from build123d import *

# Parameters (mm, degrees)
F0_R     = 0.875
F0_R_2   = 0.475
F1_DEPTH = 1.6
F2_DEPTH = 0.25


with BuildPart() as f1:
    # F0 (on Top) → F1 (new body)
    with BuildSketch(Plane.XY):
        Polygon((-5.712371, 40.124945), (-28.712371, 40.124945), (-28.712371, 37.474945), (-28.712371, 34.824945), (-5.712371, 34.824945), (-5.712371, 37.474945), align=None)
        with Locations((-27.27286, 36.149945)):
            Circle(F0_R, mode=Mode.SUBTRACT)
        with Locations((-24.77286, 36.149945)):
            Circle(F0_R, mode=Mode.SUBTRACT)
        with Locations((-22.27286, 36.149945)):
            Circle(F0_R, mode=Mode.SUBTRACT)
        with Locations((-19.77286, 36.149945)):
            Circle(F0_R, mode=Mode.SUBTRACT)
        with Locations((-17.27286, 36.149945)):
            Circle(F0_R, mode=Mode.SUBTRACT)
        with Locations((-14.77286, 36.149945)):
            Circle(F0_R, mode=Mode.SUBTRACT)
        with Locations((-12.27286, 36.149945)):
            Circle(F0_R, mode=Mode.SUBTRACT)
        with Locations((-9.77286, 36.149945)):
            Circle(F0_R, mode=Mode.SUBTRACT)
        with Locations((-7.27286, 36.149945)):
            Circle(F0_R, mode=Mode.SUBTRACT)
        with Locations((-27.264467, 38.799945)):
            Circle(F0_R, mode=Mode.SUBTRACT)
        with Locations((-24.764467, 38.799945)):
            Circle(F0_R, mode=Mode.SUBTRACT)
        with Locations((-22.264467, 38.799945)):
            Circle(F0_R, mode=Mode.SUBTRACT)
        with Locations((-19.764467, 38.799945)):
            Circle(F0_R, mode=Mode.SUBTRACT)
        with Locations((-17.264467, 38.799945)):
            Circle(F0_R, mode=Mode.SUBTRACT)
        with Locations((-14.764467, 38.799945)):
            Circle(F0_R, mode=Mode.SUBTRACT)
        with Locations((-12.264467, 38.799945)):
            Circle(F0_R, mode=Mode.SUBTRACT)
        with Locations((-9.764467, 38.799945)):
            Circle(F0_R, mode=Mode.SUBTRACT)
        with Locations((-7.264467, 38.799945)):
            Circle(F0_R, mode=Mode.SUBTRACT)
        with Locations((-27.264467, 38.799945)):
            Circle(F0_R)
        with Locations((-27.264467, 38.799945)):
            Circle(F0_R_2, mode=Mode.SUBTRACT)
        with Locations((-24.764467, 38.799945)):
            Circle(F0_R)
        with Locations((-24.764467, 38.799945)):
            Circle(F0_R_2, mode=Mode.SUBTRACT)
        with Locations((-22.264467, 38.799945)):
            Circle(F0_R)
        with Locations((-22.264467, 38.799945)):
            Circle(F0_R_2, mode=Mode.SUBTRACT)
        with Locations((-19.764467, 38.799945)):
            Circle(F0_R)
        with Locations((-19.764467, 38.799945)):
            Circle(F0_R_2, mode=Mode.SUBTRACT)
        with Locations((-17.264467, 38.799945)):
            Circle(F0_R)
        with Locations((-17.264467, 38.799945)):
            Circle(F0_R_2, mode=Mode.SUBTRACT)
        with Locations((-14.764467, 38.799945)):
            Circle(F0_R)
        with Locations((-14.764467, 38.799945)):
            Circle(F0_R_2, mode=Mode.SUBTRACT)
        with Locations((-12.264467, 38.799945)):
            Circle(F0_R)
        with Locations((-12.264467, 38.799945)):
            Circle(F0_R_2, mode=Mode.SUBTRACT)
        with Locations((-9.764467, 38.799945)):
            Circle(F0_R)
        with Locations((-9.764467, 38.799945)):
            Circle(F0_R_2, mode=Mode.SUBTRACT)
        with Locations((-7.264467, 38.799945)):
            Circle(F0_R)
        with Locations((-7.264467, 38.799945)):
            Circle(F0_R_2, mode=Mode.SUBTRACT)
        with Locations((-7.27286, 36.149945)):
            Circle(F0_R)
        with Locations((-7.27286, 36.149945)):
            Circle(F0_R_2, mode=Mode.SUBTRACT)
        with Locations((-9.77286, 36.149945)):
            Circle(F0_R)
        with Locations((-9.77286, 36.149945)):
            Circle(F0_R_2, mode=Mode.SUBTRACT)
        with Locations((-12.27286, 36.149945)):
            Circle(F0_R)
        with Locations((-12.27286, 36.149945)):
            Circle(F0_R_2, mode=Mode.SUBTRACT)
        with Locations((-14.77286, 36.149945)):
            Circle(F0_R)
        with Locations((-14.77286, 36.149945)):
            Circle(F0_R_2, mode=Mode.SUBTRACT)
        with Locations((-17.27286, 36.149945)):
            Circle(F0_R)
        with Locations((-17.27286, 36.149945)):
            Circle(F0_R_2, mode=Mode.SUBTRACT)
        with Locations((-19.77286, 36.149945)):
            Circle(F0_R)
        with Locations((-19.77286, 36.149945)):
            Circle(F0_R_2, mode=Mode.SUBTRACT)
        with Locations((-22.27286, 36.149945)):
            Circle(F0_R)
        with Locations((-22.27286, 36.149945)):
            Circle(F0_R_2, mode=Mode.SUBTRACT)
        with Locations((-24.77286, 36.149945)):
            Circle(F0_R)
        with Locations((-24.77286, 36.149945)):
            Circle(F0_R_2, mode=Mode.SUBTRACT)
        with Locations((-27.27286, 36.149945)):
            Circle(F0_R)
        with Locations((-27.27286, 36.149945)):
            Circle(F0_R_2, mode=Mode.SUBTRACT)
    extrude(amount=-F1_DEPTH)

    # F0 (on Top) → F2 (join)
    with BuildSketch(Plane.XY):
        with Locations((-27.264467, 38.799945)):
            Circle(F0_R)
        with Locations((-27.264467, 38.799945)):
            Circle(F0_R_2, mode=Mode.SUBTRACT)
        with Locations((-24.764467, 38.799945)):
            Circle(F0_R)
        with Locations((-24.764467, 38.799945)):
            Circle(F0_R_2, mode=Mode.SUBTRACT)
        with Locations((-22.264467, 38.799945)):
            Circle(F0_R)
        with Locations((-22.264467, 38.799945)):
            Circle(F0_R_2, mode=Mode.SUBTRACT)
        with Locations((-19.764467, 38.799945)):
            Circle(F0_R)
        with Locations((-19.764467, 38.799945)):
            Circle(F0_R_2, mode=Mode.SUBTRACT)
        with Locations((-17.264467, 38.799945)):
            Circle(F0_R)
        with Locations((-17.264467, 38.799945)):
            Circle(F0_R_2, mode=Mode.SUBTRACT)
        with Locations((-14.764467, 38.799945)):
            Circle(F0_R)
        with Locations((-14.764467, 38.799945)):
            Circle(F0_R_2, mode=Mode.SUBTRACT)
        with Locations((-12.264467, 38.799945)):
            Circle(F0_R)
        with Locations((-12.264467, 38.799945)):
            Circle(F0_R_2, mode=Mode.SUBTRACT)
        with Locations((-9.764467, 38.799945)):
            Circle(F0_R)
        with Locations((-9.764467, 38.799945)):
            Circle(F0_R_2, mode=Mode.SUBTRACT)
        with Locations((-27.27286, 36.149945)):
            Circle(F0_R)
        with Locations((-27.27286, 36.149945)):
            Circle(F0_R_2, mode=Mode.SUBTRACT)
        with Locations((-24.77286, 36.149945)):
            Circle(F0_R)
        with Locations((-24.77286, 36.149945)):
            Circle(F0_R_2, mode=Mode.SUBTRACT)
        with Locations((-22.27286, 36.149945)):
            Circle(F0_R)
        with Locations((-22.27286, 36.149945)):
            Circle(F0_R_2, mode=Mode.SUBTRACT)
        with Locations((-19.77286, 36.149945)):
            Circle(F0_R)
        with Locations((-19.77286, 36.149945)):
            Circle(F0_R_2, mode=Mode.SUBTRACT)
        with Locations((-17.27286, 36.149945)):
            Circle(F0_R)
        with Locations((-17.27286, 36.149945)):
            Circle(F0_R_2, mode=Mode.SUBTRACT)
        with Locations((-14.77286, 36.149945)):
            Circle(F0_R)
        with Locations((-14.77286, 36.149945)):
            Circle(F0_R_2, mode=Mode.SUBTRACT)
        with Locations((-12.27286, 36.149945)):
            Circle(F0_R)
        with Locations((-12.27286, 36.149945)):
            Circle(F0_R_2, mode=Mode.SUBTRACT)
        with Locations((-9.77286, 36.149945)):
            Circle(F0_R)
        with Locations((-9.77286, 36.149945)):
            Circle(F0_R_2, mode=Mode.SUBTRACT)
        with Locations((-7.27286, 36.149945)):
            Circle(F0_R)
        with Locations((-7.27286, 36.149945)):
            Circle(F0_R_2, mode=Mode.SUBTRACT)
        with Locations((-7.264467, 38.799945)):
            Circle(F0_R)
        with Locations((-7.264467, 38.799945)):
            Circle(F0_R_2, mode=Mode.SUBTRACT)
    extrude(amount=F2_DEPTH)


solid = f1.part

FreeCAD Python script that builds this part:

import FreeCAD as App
import Part
import Sketcher
Q = App.Units.Quantity


def add_polygon(sketch, points):
    """Adds a closed chain of lines whose ends are joined by coincident constraints."""
    first, n = sketch.GeometryCount, len(points)
    for a, b in zip(points, points[1:] + points[:1]):
        sketch.addGeometry(Part.LineSegment(App.Vector(*a, 0), App.Vector(*b, 0)), False)
    for i in range(n):
        sketch.addConstraint(Sketcher.Constraint("Coincident", first + i, 2, first + (i + 1) % n, 1))

doc = App.newDocument("Part")
params = doc.addObject("Spreadsheet::Sheet", "Params")
for row, (alias, value) in enumerate([
    ("sketch1_diameter", "0.95 mm"),
    ("sketch1_width", "23 mm"),
    ("sketch1_height", "5.3 mm"),
    ("pad1_length", "1.6 mm"),
    ("sketch2_diameter", "1.75 mm"),
    ("sketch2_diameter2", "0.95 mm"),
    ("pad2_length", "0.25 mm"),
], start=1):
    params.set(f"A{row}", alias)
    params.set(f"B{row}", "=" + value)
    params.setAlias(f"B{row}", alias)

body = doc.addObject("PartDesign::Body", "Body")

# Sketch on XY plane
sketch1 = doc.addObject("Sketcher::SketchObject", "Sketch")
body.addObject(sketch1)
sketch1.AttachmentSupport = (doc.XY_Plane, [""])
sketch1.MapMode = "FlatFace"
add_polygon(sketch1, [(-5.71, 40.12), (-28.71, 40.12), (-28.71, 34.82), (-5.71, 34.82)])  # lines 0-3
sketch1.addGeometry(Part.Circle(App.Vector(-27.27, 36.15, 0), App.Vector(0, 0, 1), 0.47), False)  # 4
sketch1.addGeometry(Part.Circle(App.Vector(-24.77, 36.15, 0), App.Vector(0, 0, 1), 0.47), False)  # 5
sketch1.addGeometry(Part.Circle(App.Vector(-22.27, 36.15, 0), App.Vector(0, 0, 1), 0.47), False)  # 6
sketch1.addGeometry(Part.Circle(App.Vector(-19.77, 36.15, 0), App.Vector(0, 0, 1), 0.47), False)  # 7
sketch1.addGeometry(Part.Circle(App.Vector(-17.27, 36.15, 0), App.Vector(0, 0, 1), 0.47), False)  # 8
sketch1.addGeometry(Part.Circle(App.Vector(-14.77, 36.15, 0), App.Vector(0, 0, 1), 0.47), False)  # 9
sketch1.addGeometry(Part.Circle(App.Vector(-12.27, 36.15, 0), App.Vector(0, 0, 1), 0.47), False)  # 10
sketch1.addGeometry(Part.Circle(App.Vector(-9.77, 36.15, 0), App.Vector(0, 0, 1), 0.47), False)  # 11
sketch1.addGeometry(Part.Circle(App.Vector(-7.27, 36.15, 0), App.Vector(0, 0, 1), 0.47), False)  # 12
sketch1.addGeometry(Part.Circle(App.Vector(-27.26, 38.8, 0), App.Vector(0, 0, 1), 0.47), False)  # 13
sketch1.addGeometry(Part.Circle(App.Vector(-24.76, 38.8, 0), App.Vector(0, 0, 1), 0.47), False)  # 14
sketch1.addGeometry(Part.Circle(App.Vector(-22.26, 38.8, 0), App.Vector(0, 0, 1), 0.47), False)  # 15
sketch1.addGeometry(Part.Circle(App.Vector(-19.76, 38.8, 0), App.Vector(0, 0, 1), 0.47), False)  # 16
sketch1.addGeometry(Part.Circle(App.Vector(-17.26, 38.8, 0), App.Vector(0, 0, 1), 0.47), False)  # 17
sketch1.addGeometry(Part.Circle(App.Vector(-14.76, 38.8, 0), App.Vector(0, 0, 1), 0.47), False)  # 18
sketch1.addGeometry(Part.Circle(App.Vector(-12.26, 38.8, 0), App.Vector(0, 0, 1), 0.47), False)  # 19
sketch1.addGeometry(Part.Circle(App.Vector(-9.76, 38.8, 0), App.Vector(0, 0, 1), 0.47), False)  # 20
sketch1.addGeometry(Part.Circle(App.Vector(-7.26, 38.8, 0), App.Vector(0, 0, 1), 0.47), False)  # 21
sketch1.addConstraint([
    Sketcher.Constraint("Horizontal", 0),
    Sketcher.Constraint("Vertical", 1),
    Sketcher.Constraint("Horizontal", 2),
    Sketcher.Constraint("Vertical", 3),
    Sketcher.Constraint("Equal", 4, 5),
    Sketcher.Constraint("Equal", 5, 6),
    Sketcher.Constraint("Equal", 6, 7),
    Sketcher.Constraint("Equal", 7, 8),
    Sketcher.Constraint("Equal", 8, 9),
    Sketcher.Constraint("Equal", 9, 10),
    Sketcher.Constraint("Equal", 10, 11),
    Sketcher.Constraint("Equal", 11, 12),
    Sketcher.Constraint("Equal", 12, 13),
    Sketcher.Constraint("Equal", 13, 14),
    Sketcher.Constraint("Equal", 14, 15),
    Sketcher.Constraint("Equal", 15, 16),
    Sketcher.Constraint("Equal", 16, 17),
    Sketcher.Constraint("Equal", 17, 18),
    Sketcher.Constraint("Equal", 18, 19),
    Sketcher.Constraint("Equal", 19, 20),
    Sketcher.Constraint("Equal", 20, 21),
    Sketcher.Constraint("Horizontal", 4, 3, 5, 3),
    Sketcher.Constraint("Horizontal", 5, 3, 6, 3),
    Sketcher.Constraint("Horizontal", 6, 3, 7, 3),
    Sketcher.Constraint("Horizontal", 7, 3, 8, 3),
    Sketcher.Constraint("Horizontal", 8, 3, 9, 3),
    Sketcher.Constraint("Horizontal", 9, 3, 10, 3),
    Sketcher.Constraint("Horizontal", 10, 3, 11, 3),
    Sketcher.Constraint("Horizontal", 11, 3, 12, 3),
    Sketcher.Constraint("Horizontal", 13, 3, 14, 3),
    Sketcher.Constraint("Horizontal", 14, 3, 15, 3),
    Sketcher.Constraint("Horizontal", 15, 3, 16, 3),
    Sketcher.Constraint("Horizontal", 16, 3, 17, 3),
    Sketcher.Constraint("Horizontal", 17, 3, 18, 3),
    Sketcher.Constraint("Horizontal", 18, 3, 19, 3),
    Sketcher.Constraint("Horizontal", 19, 3, 20, 3),
    Sketcher.Constraint("Horizontal", 20, 3, 21, 3),
    Sketcher.Constraint("Diameter", 4, Q("0.95 mm")),
    Sketcher.Constraint("DistanceX", 0, 2, 0, 1, Q("23 mm")),
    Sketcher.Constraint("DistanceY", 1, 2, 1, 1, Q("5.3 mm")),
    Sketcher.Constraint("DistanceX", 4, 3, 6, 3, Q("5 mm")),
    Sketcher.Constraint("DistanceX", 5, 3, 7, 3, Q("5 mm")),
    Sketcher.Constraint("DistanceX", 6, 3, 8, 3, Q("5 mm")),
    Sketcher.Constraint("DistanceX", 7, 3, 9, 3, Q("5 mm")),
    Sketcher.Constraint("DistanceX", 8, 3, 10, 3, Q("5 mm")),
    Sketcher.Constraint("DistanceX", 9, 3, 11, 3, Q("5 mm")),
    Sketcher.Constraint("DistanceX", 10, 3, 12, 3, Q("5 mm")),
    Sketcher.Constraint("DistanceX", 13, 3, 15, 3, Q("5 mm")),
    Sketcher.Constraint("DistanceX", 14, 3, 16, 3, Q("5 mm")),
    Sketcher.Constraint("DistanceX", 15, 3, 17, 3, Q("5 mm")),
    Sketcher.Constraint("DistanceX", 16, 3, 18, 3, Q("5 mm")),
    Sketcher.Constraint("DistanceX", 17, 3, 19, 3, Q("5 mm")),
    Sketcher.Constraint("DistanceX", 18, 3, 20, 3, Q("5 mm")),
    Sketcher.Constraint("DistanceX", 19, 3, 21, 3, Q("5 mm")),
    Sketcher.Constraint("DistanceX", 4, 3, 5, 3, Q("2.5 mm")),
    Sketcher.Constraint("DistanceX", 13, 3, 14, 3, Q("2.5 mm")),
    Sketcher.Constraint("DistanceY", 4, 3, 13, 3, Q("2.65 mm")),
    Sketcher.Constraint("DistanceY", 13, 3, 0, 2, Q("1.325 mm")),
    Sketcher.Constraint("DistanceX", 4, 3, -1, 1, Q("27.27286 mm")),
    Sketcher.Constraint("DistanceX", 0, 2, -1, 1, Q("28.712371 mm")),
    Sketcher.Constraint("DistanceY", -1, 1, 4, 3, Q("36.149945 mm")),
    Sketcher.Constraint("DistanceX", 13, 3, -1, 1, Q("27.264467 mm")),
])
sketch1.setExpression("Constraints[41]", "Params.sketch1_diameter")
sketch1.setExpression("Constraints[42]", "Params.sketch1_width")
sketch1.setExpression("Constraints[43]", "Params.sketch1_height")
pad1 = doc.addObject("PartDesign::Pad", "Pad")
body.addObject(pad1)
pad1.Profile = sketch1
pad1.setExpression("Length", "Params.pad1_length")
pad1.Reversed = True

# Sketch on XY plane
sketch2 = doc.addObject("Sketcher::SketchObject", "Sketch001")
body.addObject(sketch2)
sketch2.AttachmentSupport = (doc.XY_Plane, [""])
sketch2.MapMode = "FlatFace"
sketch2.addGeometry([
    Part.Circle(App.Vector(-27.26, 38.8, 0), App.Vector(0, 0, 1), 0.88),  # 0
    Part.Circle(App.Vector(-27.26, 38.8, 0), App.Vector(0, 0, 1), 0.47),  # 1
    Part.Circle(App.Vector(-24.76, 38.8, 0), App.Vector(0, 0, 1), 0.88),  # 2
    Part.Circle(App.Vector(-24.76, 38.8, 0), App.Vector(0, 0, 1), 0.47),  # 3
    Part.Circle(App.Vector(-22.26, 38.8, 0), App.Vector(0, 0, 1), 0.88),  # 4
    Part.Circle(App.Vector(-22.26, 38.8, 0), App.Vector(0, 0, 1), 0.47),  # 5
    Part.Circle(App.Vector(-19.76, 38.8, 0), App.Vector(0, 0, 1), 0.88),  # 6
    Part.Circle(App.Vector(-19.76, 38.8, 0), App.Vector(0, 0, 1), 0.47),  # 7
    Part.Circle(App.Vector(-17.26, 38.8, 0), App.Vector(0, 0, 1), 0.88),  # 8
    Part.Circle(App.Vector(-17.26, 38.8, 0), App.Vector(0, 0, 1), 0.47),  # 9
    Part.Circle(App.Vector(-14.76, 38.8, 0), App.Vector(0, 0, 1), 0.88),  # 10
    Part.Circle(App.Vector(-14.76, 38.8, 0), App.Vector(0, 0, 1), 0.47),  # 11
    Part.Circle(App.Vector(-12.26, 38.8, 0), App.Vector(0, 0, 1), 0.88),  # 12
    Part.Circle(App.Vector(-12.26, 38.8, 0), App.Vector(0, 0, 1), 0.47),  # 13
    Part.Circle(App.Vector(-9.76, 38.8, 0), App.Vector(0, 0, 1), 0.88),  # 14
    Part.Circle(App.Vector(-9.76, 38.8, 0), App.Vector(0, 0, 1), 0.47),  # 15
    Part.Circle(App.Vector(-27.27, 36.15, 0), App.Vector(0, 0, 1), 0.88),  # 16
    Part.Circle(App.Vector(-27.27, 36.15, 0), App.Vector(0, 0, 1), 0.47),  # 17
    Part.Circle(App.Vector(-24.77, 36.15, 0), App.Vector(0, 0, 1), 0.88),  # 18
    Part.Circle(App.Vector(-24.77, 36.15, 0), App.Vector(0, 0, 1), 0.47),  # 19
    Part.Circle(App.Vector(-22.27, 36.15, 0), App.Vector(0, 0, 1), 0.88),  # 20
    Part.Circle(App.Vector(-22.27, 36.15, 0), App.Vector(0, 0, 1), 0.47),  # 21
    Part.Circle(App.Vector(-19.77, 36.15, 0), App.Vector(0, 0, 1), 0.88),  # 22
    Part.Circle(App.Vector(-19.77, 36.15, 0), App.Vector(0, 0, 1), 0.47),  # 23
    Part.Circle(App.Vector(-17.27, 36.15, 0), App.Vector(0, 0, 1), 0.88),  # 24
    Part.Circle(App.Vector(-17.27, 36.15, 0), App.Vector(0, 0, 1), 0.47),  # 25
    Part.Circle(App.Vector(-14.77, 36.15, 0), App.Vector(0, 0, 1), 0.88),  # 26
    Part.Circle(App.Vector(-14.77, 36.15, 0), App.Vector(0, 0, 1), 0.47),  # 27
    Part.Circle(App.Vector(-12.27, 36.15, 0), App.Vector(0, 0, 1), 0.88),  # 28
    Part.Circle(App.Vector(-12.27, 36.15, 0), App.Vector(0, 0, 1), 0.47),  # 29
    Part.Circle(App.Vector(-9.77, 36.15, 0), App.Vector(0, 0, 1), 0.88),  # 30
    Part.Circle(App.Vector(-9.77, 36.15, 0), App.Vector(0, 0, 1), 0.47),  # 31
    Part.Circle(App.Vector(-7.27, 36.15, 0), App.Vector(0, 0, 1), 0.88),  # 32
    Part.Circle(App.Vector(-7.27, 36.15, 0), App.Vector(0, 0, 1), 0.47),  # 33
    Part.Circle(App.Vector(-7.26, 38.8, 0), App.Vector(0, 0, 1), 0.88),  # 34
    Part.Circle(App.Vector(-7.26, 38.8, 0), App.Vector(0, 0, 1), 0.47),  # 35
], False)
sketch2.addConstraint([
    Sketcher.Constraint("Coincident", 1, 3, 0, 3),
    Sketcher.Constraint("Coincident", 3, 3, 2, 3),
    Sketcher.Constraint("Coincident", 5, 3, 4, 3),
    Sketcher.Constraint("Coincident", 7, 3, 6, 3),
    Sketcher.Constraint("Coincident", 9, 3, 8, 3),
    Sketcher.Constraint("Coincident", 11, 3, 10, 3),
    Sketcher.Constraint("Coincident", 13, 3, 12, 3),
    Sketcher.Constraint("Coincident", 15, 3, 14, 3),
    Sketcher.Constraint("Coincident", 17, 3, 16, 3),
    Sketcher.Constraint("Coincident", 19, 3, 18, 3),
    Sketcher.Constraint("Coincident", 21, 3, 20, 3),
    Sketcher.Constraint("Coincident", 23, 3, 22, 3),
    Sketcher.Constraint("Coincident", 25, 3, 24, 3),
    Sketcher.Constraint("Coincident", 27, 3, 26, 3),
    Sketcher.Constraint("Coincident", 29, 3, 28, 3),
    Sketcher.Constraint("Coincident", 31, 3, 30, 3),
    Sketcher.Constraint("Coincident", 33, 3, 32, 3),
    Sketcher.Constraint("Coincident", 35, 3, 34, 3),
    Sketcher.Constraint("Equal", 0, 2),
    Sketcher.Constraint("Equal", 1, 3),
    Sketcher.Constraint("Equal", 2, 4),
    Sketcher.Constraint("Equal", 3, 5),
    Sketcher.Constraint("Equal", 4, 6),
    Sketcher.Constraint("Equal", 5, 7),
    Sketcher.Constraint("Equal", 6, 8),
    Sketcher.Constraint("Equal", 7, 9),
    Sketcher.Constraint("Equal", 8, 10),
    Sketcher.Constraint("Equal", 9, 11),
    Sketcher.Constraint("Equal", 10, 12),
    Sketcher.Constraint("Equal", 11, 13),
    Sketcher.Constraint("Equal", 12, 14),
    Sketcher.Constraint("Equal", 13, 15),
    Sketcher.Constraint("Equal", 14, 16),
    Sketcher.Constraint("Equal", 15, 17),
    Sketcher.Constraint("Equal", 16, 18),
    Sketcher.Constraint("Equal", 17, 19),
    Sketcher.Constraint("Equal", 18, 20),
    Sketcher.Constraint("Equal", 19, 21),
    Sketcher.Constraint("Equal", 20, 22),
    Sketcher.Constraint("Equal", 21, 23),
    Sketcher.Constraint("Equal", 22, 24),
    Sketcher.Constraint("Equal", 23, 25),
    Sketcher.Constraint("Equal", 24, 26),
    Sketcher.Constraint("Equal", 25, 27),
    Sketcher.Constraint("Equal", 26, 28),
    Sketcher.Constraint("Equal", 27, 29),
    Sketcher.Constraint("Equal", 28, 30),
    Sketcher.Constraint("Equal", 29, 31),
    Sketcher.Constraint("Equal", 30, 32),
    Sketcher.Constraint("Equal", 31, 33),
    Sketcher.Constraint("Equal", 32, 34),
    Sketcher.Constraint("Equal", 33, 35),
    Sketcher.Constraint("Horizontal", 1, 3, 2, 3),
    Sketcher.Constraint("Horizontal", 3, 3, 4, 3),
    Sketcher.Constraint("Horizontal", 5, 3, 6, 3),
    Sketcher.Constraint("Horizontal", 7, 3, 8, 3),
    Sketcher.Constraint("Horizontal", 9, 3, 10, 3),
    Sketcher.Constraint("Horizontal", 11, 3, 12, 3),
    Sketcher.Constraint("Horizontal", 13, 3, 14, 3),
    Sketcher.Constraint("Horizontal", 17, 3, 18, 3),
    Sketcher.Constraint("Horizontal", 19, 3, 20, 3),
    Sketcher.Constraint("Horizontal", 21, 3, 22, 3),
    Sketcher.Constraint("Horizontal", 23, 3, 24, 3),
    Sketcher.Constraint("Horizontal", 25, 3, 26, 3),
    Sketcher.Constraint("Horizontal", 27, 3, 28, 3),
    Sketcher.Constraint("Horizontal", 29, 3, 30, 3),
    Sketcher.Constraint("Horizontal", 31, 3, 32, 3),
    Sketcher.Constraint("Horizontal", 15, 3, 34, 3),
    Sketcher.Constraint("Diameter", 0, Q("1.75 mm")),
    Sketcher.Constraint("Diameter", 1, Q("0.95 mm")),
    Sketcher.Constraint("DistanceX", 0, 3, 4, 3, Q("5 mm")),
    Sketcher.Constraint("DistanceX", 2, 3, 6, 3, Q("5 mm")),
    Sketcher.Constraint("DistanceX", 4, 3, 8, 3, Q("5 mm")),
    Sketcher.Constraint("DistanceX", 6, 3, 10, 3, Q("5 mm")),
    Sketcher.Constraint("DistanceX", 8, 3, 12, 3, Q("5 mm")),
    Sketcher.Constraint("DistanceX", 10, 3, 14, 3, Q("5 mm")),
    Sketcher.Constraint("DistanceX", 28, 3, 32, 3, Q("5 mm")),
    Sketcher.Constraint("DistanceX", 0, 3, 2, 3, Q("2.5 mm")),
    Sketcher.Constraint("DistanceX", 16, 3, 18, 3, Q("2.5 mm")),
    Sketcher.Constraint("DistanceX", 18, 3, 20, 3, Q("2.5 mm")),
    Sketcher.Constraint("DistanceX", 20, 3, 22, 3, Q("2.5 mm")),
    Sketcher.Constraint("DistanceX", 22, 3, 24, 3, Q("2.5 mm")),
    Sketcher.Constraint("DistanceX", 24, 3, 26, 3, Q("2.5 mm")),
    Sketcher.Constraint("DistanceX", 26, 3, 28, 3, Q("2.5 mm")),
    Sketcher.Constraint("DistanceX", 28, 3, 30, 3, Q("2.5 mm")),
    Sketcher.Constraint("DistanceX", 14, 3, 34, 3, Q("2.5 mm")),
    Sketcher.Constraint("DistanceY", 16, 3, 0, 3, Q("2.65 mm")),
    Sketcher.Constraint("DistanceX", 16, 3, -1, 1, Q("27.27286 mm")),
    Sketcher.Constraint("DistanceX", 0, 3, -1, 1, Q("27.264467 mm")),
    Sketcher.Constraint("DistanceY", -1, 1, 0, 3, Q("38.799945 mm")),
])
sketch2.setExpression("Constraints[68]", "Params.sketch2_diameter")
sketch2.setExpression("Constraints[69]", "Params.sketch2_diameter2")
pad2 = doc.addObject("PartDesign::Pad", "Pad001")
body.addObject(pad2)
pad2.Profile = sketch2
pad2.setExpression("Length", "Params.pad2_length")

doc.recompute()
